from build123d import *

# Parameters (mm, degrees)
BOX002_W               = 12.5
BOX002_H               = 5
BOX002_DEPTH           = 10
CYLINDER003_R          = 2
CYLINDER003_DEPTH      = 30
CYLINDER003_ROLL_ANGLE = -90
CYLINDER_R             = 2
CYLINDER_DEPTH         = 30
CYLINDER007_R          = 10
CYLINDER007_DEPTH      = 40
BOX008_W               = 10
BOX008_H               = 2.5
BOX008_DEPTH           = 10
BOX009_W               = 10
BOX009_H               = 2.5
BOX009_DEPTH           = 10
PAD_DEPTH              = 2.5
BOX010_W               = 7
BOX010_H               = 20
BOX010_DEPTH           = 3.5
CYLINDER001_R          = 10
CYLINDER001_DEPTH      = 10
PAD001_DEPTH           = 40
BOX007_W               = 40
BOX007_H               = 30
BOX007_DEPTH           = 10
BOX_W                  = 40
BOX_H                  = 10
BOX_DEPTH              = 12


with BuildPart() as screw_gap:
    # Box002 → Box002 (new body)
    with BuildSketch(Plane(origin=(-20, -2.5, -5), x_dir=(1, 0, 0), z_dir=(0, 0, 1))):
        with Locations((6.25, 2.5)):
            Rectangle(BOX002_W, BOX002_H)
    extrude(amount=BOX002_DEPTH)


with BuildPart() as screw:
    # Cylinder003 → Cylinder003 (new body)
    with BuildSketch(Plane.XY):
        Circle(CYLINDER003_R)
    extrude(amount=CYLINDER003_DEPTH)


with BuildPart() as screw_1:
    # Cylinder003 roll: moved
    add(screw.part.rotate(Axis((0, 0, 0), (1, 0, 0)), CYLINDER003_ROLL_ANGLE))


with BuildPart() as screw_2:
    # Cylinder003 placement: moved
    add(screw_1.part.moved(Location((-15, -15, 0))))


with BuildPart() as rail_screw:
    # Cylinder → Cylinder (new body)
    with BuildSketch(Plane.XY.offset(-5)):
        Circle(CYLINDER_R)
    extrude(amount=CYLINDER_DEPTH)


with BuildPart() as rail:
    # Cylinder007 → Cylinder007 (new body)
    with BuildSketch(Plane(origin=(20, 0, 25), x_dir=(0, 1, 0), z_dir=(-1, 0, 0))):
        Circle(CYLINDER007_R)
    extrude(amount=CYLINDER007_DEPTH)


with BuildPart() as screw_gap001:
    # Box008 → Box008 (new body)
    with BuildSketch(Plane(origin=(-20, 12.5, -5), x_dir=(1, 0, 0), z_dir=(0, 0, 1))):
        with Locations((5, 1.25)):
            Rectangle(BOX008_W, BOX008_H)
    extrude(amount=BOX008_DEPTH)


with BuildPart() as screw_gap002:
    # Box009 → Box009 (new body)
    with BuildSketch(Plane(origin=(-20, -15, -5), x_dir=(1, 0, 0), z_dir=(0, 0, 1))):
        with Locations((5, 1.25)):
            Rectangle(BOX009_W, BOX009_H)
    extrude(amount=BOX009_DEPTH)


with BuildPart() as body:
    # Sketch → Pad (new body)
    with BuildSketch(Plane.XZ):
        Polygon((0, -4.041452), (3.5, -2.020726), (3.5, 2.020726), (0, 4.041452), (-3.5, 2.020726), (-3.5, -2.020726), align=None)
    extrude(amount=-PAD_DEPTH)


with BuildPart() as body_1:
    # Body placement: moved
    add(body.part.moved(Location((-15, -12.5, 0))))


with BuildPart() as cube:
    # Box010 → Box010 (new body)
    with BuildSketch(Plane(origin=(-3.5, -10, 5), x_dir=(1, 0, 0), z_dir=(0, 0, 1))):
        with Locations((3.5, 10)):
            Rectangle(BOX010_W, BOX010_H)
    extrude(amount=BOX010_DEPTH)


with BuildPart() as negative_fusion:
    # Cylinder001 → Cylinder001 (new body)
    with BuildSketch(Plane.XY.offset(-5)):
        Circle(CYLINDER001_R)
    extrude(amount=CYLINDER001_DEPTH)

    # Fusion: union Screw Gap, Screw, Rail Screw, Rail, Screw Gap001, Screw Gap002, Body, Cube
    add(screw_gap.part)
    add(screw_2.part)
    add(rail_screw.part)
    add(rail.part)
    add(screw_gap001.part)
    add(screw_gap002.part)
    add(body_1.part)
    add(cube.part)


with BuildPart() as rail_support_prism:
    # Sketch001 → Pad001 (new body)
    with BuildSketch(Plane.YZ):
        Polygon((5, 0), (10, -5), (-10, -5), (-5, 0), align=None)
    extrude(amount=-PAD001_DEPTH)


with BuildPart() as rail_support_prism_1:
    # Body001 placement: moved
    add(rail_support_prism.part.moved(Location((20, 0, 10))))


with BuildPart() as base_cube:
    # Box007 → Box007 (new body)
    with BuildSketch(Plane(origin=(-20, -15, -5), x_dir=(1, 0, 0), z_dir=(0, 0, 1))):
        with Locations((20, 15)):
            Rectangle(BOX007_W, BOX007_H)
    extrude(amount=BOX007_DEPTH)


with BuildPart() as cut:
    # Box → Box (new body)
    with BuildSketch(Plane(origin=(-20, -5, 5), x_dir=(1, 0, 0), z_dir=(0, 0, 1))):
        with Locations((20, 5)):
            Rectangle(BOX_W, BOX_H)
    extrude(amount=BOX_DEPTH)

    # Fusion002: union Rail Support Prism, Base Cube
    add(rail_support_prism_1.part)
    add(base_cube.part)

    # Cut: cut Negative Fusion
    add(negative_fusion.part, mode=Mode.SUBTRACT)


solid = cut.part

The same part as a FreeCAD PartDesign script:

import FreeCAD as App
import Part
import Sketcher

V = App.Vector
Q = App.Units.Quantity

doc = App.newDocument("Part")
body = doc.addObject("PartDesign::Body", "Body")

# Sketch on XY plane
sketch1 = doc.addObject("Sketcher::SketchObject", "Sketch")
body.addObject(sketch1)
sketch1.AttachmentSupport = (doc.XY_Plane, [""])
sketch1.MapMode = "FlatFace"
sketch1.AttachmentOffset = App.Placement(V(0, 0, -5), App.Rotation())
sketch1.addGeometry(Part.LineSegment(V(-20, 2.5, 0), V(-20, -2.5, 0)), False)
sketch1.addGeometry(Part.LineSegment(V(-20, -2.5, 0), V(-7.5, -2.5, 0)), False)
sketch1.addGeometry(Part.LineSegment(V(-7.5, -2.5, 0), V(-7.5, 2.5, 0)), False)
sketch1.addGeometry(Part.LineSegment(V(-7.5, 2.5, 0), V(-20, 2.5, 0)), False)
sketch1.addConstraint(Sketcher.Constraint("Coincident", 0, 2, 1, 1))
sketch1.addConstraint(Sketcher.Constraint("Coincident", 1, 2, 2, 1))
sketch1.addConstraint(Sketcher.Constraint("Coincident", 2, 2, 3, 1))
sketch1.addConstraint(Sketcher.Constraint("Coincident", 3, 2, 0, 1))
sketch1.addConstraint(Sketcher.Constraint("Vertical", 0))
sketch1.addConstraint(Sketcher.Constraint("Horizontal", 1))
sketch1.addConstraint(Sketcher.Constraint("Vertical", 2))
sketch1.addConstraint(Sketcher.Constraint("Horizontal", 3))
sketch1.addConstraint(Sketcher.Constraint("DistanceY", 0, 2, 0, 1, 5.0))
sketch1.addConstraint(Sketcher.Constraint("DistanceX", 1, 1, 1, 2, 12.5))
sketch1.addConstraint(Sketcher.Constraint("DistanceX", 0, 2, -1, 1, 20.0))
sketch1.addConstraint(Sketcher.Constraint("DistanceY", 0, 2, -1, 1, 2.5))
pad1 = doc.addObject("PartDesign::Pad", "Pad")
body.addObject(pad1)
pad1.Profile = sketch1
pad1.Length = 10
body2 = doc.addObject("PartDesign::Body", "Body001")

# Sketch on XY plane
sketch2 = doc.addObject("Sketcher::SketchObject", "Sketch001")
body2.addObject(sketch2)
sketch2.AttachmentSupport = (doc.getObject("XY_Plane001"), [""])
sketch2.MapMode = "FlatFace"
sketch2.addGeometry(Part.Circle(V(0, 0, 0), V(0, 0, 1), 2), False)
sketch2.addConstraint(Sketcher.Constraint("Coincident", 0, 3, -1, 1))
sketch2.addConstraint(Sketcher.Constraint("Diameter", 0, 4.0))
pad2 = doc.addObject("PartDesign::Pad", "Pad001")
body2.addObject(pad2)
pad2.Profile = sketch2
pad2.Length = 30
body3 = doc.addObject("PartDesign::Body", "Body002")
doc.recompute()

body2.Placement = App.Placement(V(0, 0, 0), App.Rotation(V(1, 0, 0), 270))
boolean = doc.addObject("PartDesign::Boolean", "Boolean")
body3.addObject(boolean)
boolean.Type = "Fuse"
boolean.addObjects([body2])
body4 = doc.addObject("PartDesign::Body", "Body003")
doc.recompute()

body3.Placement = App.Placement(V(-15, -15, 0), App.Rotation(V(0, 0, 1), 0))
boolean2 = doc.addObject("PartDesign::Boolean", "Boolean001")
body4.addObject(boolean2)
boolean2.Type = "Fuse"
boolean2.addObjects([body3])
body5 = doc.addObject("PartDesign::Body", "Body004")

# Sketch on XY plane
sketch3 = doc.addObject("Sketcher::SketchObject", "Sketch002")
body5.addObject(sketch3)
sketch3.AttachmentSupport = (doc.getObject("XY_Plane004"), [""])
sketch3.MapMode = "FlatFace"
sketch3.AttachmentOffset = App.Placement(V(0, 0, -5), App.Rotation())
sketch3.addGeometry(Part.Circle(V(0, 0, 0), V(0, 0, 1), 2), False)
sketch3.addConstraint(Sketcher.Constraint("Coincident", 0, 3, -1, 1))
sketch3.addConstraint(Sketcher.Constraint("Diameter", 0, 4.0))
pad3 = doc.addObject("PartDesign::Pad", "Pad002")
body5.addObject(pad3)
pad3.Profile = sketch3
pad3.Length = 30
body6 = doc.addObject("PartDesign::Body", "Body005")

# Sketch on YZ plane
sketch4 = doc.addObject("Sketcher::SketchObject", "Sketch003")
body6.addObject(sketch4)
sketch4.AttachmentSupport = (doc.getObject("YZ_Plane005"), [""])
sketch4.MapMode = "FlatFace"
sketch4.AttachmentOffset = App.Placement(V(0, 0, 20), App.Rotation())
sketch4.addGeometry(Part.Circle(V(0, 25, 0), V(0, 0, 1), 10), False)
sketch4.addConstraint(Sketcher.Constraint("PointOnObject", 0, 3, -2))
sketch4.addConstraint(Sketcher.Constraint("Diameter", 0, 20.0))
sketch4.addConstraint(Sketcher.Constraint("DistanceY", -1, 1, 0, 3, 25.0))
pad4 = doc.addObject("PartDesign::Pad", "Pad003")
body6.addObject(pad4)
pad4.Profile = sketch4
pad4.Length = 40
pad4.Reversed = True
body7 = doc.addObject("PartDesign::Body", "Body006")

# Sketch on XY plane
sketch5 = doc.addObject("Sketcher::SketchObject", "Sketch004")
body7.addObject(sketch5)
sketch5.AttachmentSupport = (doc.getObject("XY_Plane006"), [""])
sketch5.MapMode = "FlatFace"
sketch5.AttachmentOffset = App.Placement(V(0, 0, -5), App.Rotation())
sketch5.addGeometry(Part.LineSegment(V(-20, 15, 0), V(-20, 12.5, 0)), False)
sketch5.addGeometry(Part.LineSegment(V(-20, 12.5, 0), V(-10, 12.5, 0)), False)
sketch5.addGeometry(Part.LineSegment(V(-10, 12.5, 0), V(-10, 15, 0)), False)
sketch5.addGeometry(Part.LineSegment(V(-10, 15, 0), V(-20, 15, 0)), False)
sketch5.addConstraint(Sketcher.Constraint("Coincident", 0, 2, 1, 1))
sketch5.addConstraint(Sketcher.Constraint("Coincident", 1, 2, 2, 1))
sketch5.addConstraint(Sketcher.Constraint("Coincident", 2, 2, 3, 1))
sketch5.addConstraint(Sketcher.Constraint("Coincident", 3, 2, 0, 1))
sketch5.addConstraint(Sketcher.Constraint("Vertical", 0))
sketch5.addConstraint(Sketcher.Constraint("Horizontal", 1))
sketch5.addConstraint(Sketcher.Constraint("Vertical", 2))
sketch5.addConstraint(Sketcher.Constraint("Horizontal", 3))
sketch5.addConstraint(Sketcher.Constraint("DistanceX", 1, 1, 1, 2, 10.0))
sketch5.addConstraint(Sketcher.Constraint("DistanceY", 0, 2, 0, 1, 2.5))
sketch5.addConstraint(Sketcher.Constraint("DistanceX", 0, 2, -1, 1, 20.0))
sketch5.addConstraint(Sketcher.Constraint("DistanceY", -1, 1, 2, 2, 15.0))
pad5 = doc.addObject("PartDesign::Pad", "Pad004")
body7.addObject(pad5)
pad5.Profile = sketch5
pad5.Length = 10
body8 = doc.addObject("PartDesign::Body", "Body007")

# Sketch on XY plane
sketch6 = doc.addObject("Sketcher::SketchObject", "Sketch005")
body8.addObject(sketch6)
sketch6.AttachmentSupport = (doc.getObject("XY_Plane007"), [""])
sketch6.MapMode = "FlatFace"
sketch6.AttachmentOffset = App.Placement(V(0, 0, -5), App.Rotation())
sketch6.addGeometry(Part.LineSegment(V(-20, -12.5, 0), V(-20, -15, 0)), False)
sketch6.addGeometry(Part.LineSegment(V(-20, -15, 0), V(-10, -15, 0)), False)
sketch6.addGeometry(Part.LineSegment(V(-10, -15, 0), V(-10, -12.5, 0)), False)
sketch6.addGeometry(Part.LineSegment(V(-10, -12.5, 0), V(-20, -12.5, 0)), False)
sketch6.addConstraint(Sketcher.Constraint("Coincident", 0, 2, 1, 1))
sketch6.addConstraint(Sketcher.Constraint("Coincident", 1, 2, 2, 1))
sketch6.addConstraint(Sketcher.Constraint("Coincident", 2, 2, 3, 1))
sketch6.addConstraint(Sketcher.Constraint("Coincident", 3, 2, 0, 1))
sketch6.addConstraint(Sketcher.Constraint("Vertical", 0))
sketch6.addConstraint(Sketcher.Constraint("Horizontal", 1))
sketch6.addConstraint(Sketcher.Constraint("Vertical", 2))
sketch6.addConstraint(Sketcher.Constraint("Horizontal", 3))
sketch6.addConstraint(Sketcher.Constraint("DistanceX", 1, 1, 1, 2, 10.0))
sketch6.addConstraint(Sketcher.Constraint("DistanceY", 0, 2, 0, 1, 2.5))
sketch6.addConstraint(Sketcher.Constraint("DistanceX", 0, 2, -1, 1, 20.0))
sketch6.addConstraint(Sketcher.Constraint("DistanceY", 0, 2, -1, 1, 15.0))
pad6 = doc.addObject("PartDesign::Pad", "Pad005")
body8.addObject(pad6)
pad6.Profile = sketch6
pad6.Length = 10
body9 = doc.addObject("PartDesign::Body", "Body008")

# Sketch on XZ plane
sketch7 = doc.addObject("Sketcher::SketchObject", "Sketch006")
body9.addObject(sketch7)
sketch7.AttachmentSupport = (doc.getObject("XZ_Plane008"), [""])
sketch7.MapMode = "FlatFace"
sketch7.addGeometry(Part.LineSegment(V(0, -4.041452, 0), V(3.5, -2.020726, 0)), False)
sketch7.addGeometry(Part.LineSegment(V(3.5, -2.020726, 0), V(3.5, 2.020726, 0)), False)
sketch7.addGeometry(Part.LineSegment(V(3.5, 2.020726, 0), V(0, 4.041452, 0)), False)
sketch7.addGeometry(Part.LineSegment(V(0, 4.041452, 0), V(-3.5, 2.020726, 0)), False)
sketch7.addGeometry(Part.LineSegment(V(-3.5, 2.020726, 0), V(-3.5, -2.020726, 0)), False)
sketch7.addGeometry(Part.LineSegment(V(-3.5, -2.020726, 0), V(0, -4.041452, 0)), False)
sketch7.addConstraint(Sketcher.Constraint("Coincident", 0, 2, 1, 1))
sketch7.addConstraint(Sketcher.Constraint("Coincident", 1, 2, 2, 1))
sketch7.addConstraint(Sketcher.Constraint("Coincident", 2, 2, 3, 1))
sketch7.addConstraint(Sketcher.Constraint("Coincident", 3, 2, 4, 1))
sketch7.addConstraint(Sketcher.Constraint("Coincident", 4, 2, 5, 1))
sketch7.addConstraint(Sketcher.Constraint("Coincident", 5, 2, 0, 1))
sketch7.addConstraint(Sketcher.Constraint("Vertical", 1))
sketch7.addConstraint(Sketcher.Constraint("Vertical", 4))
sketch7.addConstraint(Sketcher.Constraint("Symmetric", 0, 2, 3, 2, -1, 1))
sketch7.addConstraint(Sketcher.Constraint("Symmetric", 2, 2, 5, 2, -1, 1))
sketch7.addConstraint(Sketcher.Constraint("PointOnObject", 2, 2, -2))
sketch7.addConstraint(Sketcher.Constraint("Parallel", 2, 5))
sketch7.addConstraint(Sketcher.Constraint("Horizontal", 1, 2, 3, 2))
sketch7.addConstraint(Sketcher.Constraint("Angle", 0, Q("30.000001 deg")))
sketch7.addConstraint(Sketcher.Constraint("DistanceX", 3, 2, 1, 2, 7.0))
sketch7.addConstraint(Sketcher.Constraint("DistanceY", 1, 1, 1, 2, 4.041452))
pad7 = doc.addObject("PartDesign::Pad", "Pad006")
body9.addObject(pad7)
pad7.Profile = sketch7
pad7.Length = 2.5
pad7.Reversed = True
body10 = doc.addObject("PartDesign::Body", "Body009")
doc.recompute()

body9.Placement = App.Placement(V(-15, -12.5, 0), App.Rotation(V(0, 0, 1), 0))
boolean3 = doc.addObject("PartDesign::Boolean", "Boolean002")
body10.addObject(boolean3)
boolean3.Type = "Fuse"
boolean3.addObjects([body9])
body11 = doc.addObject("PartDesign::Body", "Body010")

# Sketch on XY plane
sketch8 = doc.addObject("Sketcher::SketchObject", "Sketch007")
body11.addObject(sketch8)
sketch8.AttachmentSupport = (doc.getObject("XY_Plane010"), [""])
sketch8.MapMode = "FlatFace"
sketch8.AttachmentOffset = App.Placement(V(0, 0, 5), App.Rotation())
sketch8.addGeometry(Part.LineSegment(V(-3.5, 10, 0), V(-3.5, -10, 0)), False)
sketch8.addGeometry(Part.LineSegment(V(-3.5, -10, 0), V(3.5, -10, 0)), False)
sketch8.addGeometry(Part.LineSegment(V(3.5, -10, 0), V(3.5, 10, 0)), False)
sketch8.addGeometry(Part.LineSegment(V(3.5, 10, 0), V(-3.5, 10, 0)), False)
sketch8.addConstraint(Sketcher.Constraint("Coincident", 0, 2, 1, 1))
sketch8.addConstraint(Sketcher.Constraint("Coincident", 1, 2, 2, 1))
sketch8.addConstraint(Sketcher.Constraint("Coincident", 2, 2, 3, 1))
sketch8.addConstraint(Sketcher.Constraint("Coincident", 3, 2, 0, 1))
sketch8.addConstraint(Sketcher.Constraint("Vertical", 0))
sketch8.addConstraint(Sketcher.Constraint("Horizontal", 1))
sketch8.addConstraint(Sketcher.Constraint("Vertical", 2))
sketch8.addConstraint(Sketcher.Constraint("Horizontal", 3))
sketch8.addConstraint(Sketcher.Constraint("Symmetric", 0, 2, 2, 2, -1, 1))
sketch8.addConstraint(Sketcher.Constraint("DistanceX", 1, 1, 1, 2, 7.0))
sketch8.addConstraint(Sketcher.Constraint("DistanceY", 0, 2, 0, 1, 20.0))
pad8 = doc.addObject("PartDesign::Pad", "Pad007")
body11.addObject(pad8)
pad8.Profile = sketch8
pad8.Length = 3.5
body12 = doc.addObject("PartDesign::Body", "Body011")

# Sketch on XY plane
sketch9 = doc.addObject("Sketcher::SketchObject", "Sketch008")
body12.addObject(sketch9)
sketch9.AttachmentSupport = (doc.getObject("XY_Plane011"), [""])
sketch9.MapMode = "FlatFace"
sketch9.AttachmentOffset = App.Placement(V(0, 0, -5), App.Rotation())
sketch9.addGeometry(Part.Circle(V(0, 0, 0), V(0, 0, 1), 10), False)
sketch9.addConstraint(Sketcher.Constraint("Coincident", 0, 3, -1, 1))
sketch9.addConstraint(Sketcher.Constraint("Diameter", 0, 20.0))
pad9 = doc.addObject("PartDesign::Pad", "Pad008")
body12.addObject(pad9)
pad9.Profile = sketch9
pad9.Length = 10
doc.recompute()

boolean4 = doc.addObject("PartDesign::Boolean", "Boolean003")
body12.addObject(boolean4)
boolean4.Type = "Fuse"
boolean4.addObjects([body])
doc.recompute()

boolean5 = doc.addObject("PartDesign::Boolean", "Boolean004")
body12.addObject(boolean5)
boolean5.Type = "Fuse"
boolean5.addObjects([body4])
doc.recompute()

boolean6 = doc.addObject("PartDesign::Boolean", "Boolean005")
body12.addObject(boolean6)
boolean6.Type = "Fuse"
boolean6.addObjects([body5])
doc.recompute()

boolean7 = doc.addObject("PartDesign::Boolean", "Boolean006")
body12.addObject(boolean7)
boolean7.Type = "Fuse"
boolean7.addObjects([body6])
doc.recompute()

boolean8 = doc.addObject("PartDesign::Boolean", "Boolean007")
body12.addObject(boolean8)
boolean8.Type = "Fuse"
boolean8.addObjects([body7])
doc.recompute()

boolean9 = doc.addObject("PartDesign::Boolean", "Boolean008")
body12.addObject(boolean9)
boolean9.Type = "Fuse"
boolean9.addObjects([body8])
doc.recompute()

boolean10 = doc.addObject("PartDesign::Boolean", "Boolean009")
body12.addObject(boolean10)
boolean10.Type = "Fuse"
boolean10.addObjects([body10])
doc.recompute()

boolean11 = doc.addObject("PartDesign::Boolean", "Boolean010")
body12.addObject(boolean11)
boolean11.Type = "Fuse"
boolean11.addObjects([body11])
body13 = doc.addObject("PartDesign::Body", "Body012")

# Sketch on YZ plane
sketch10 = doc.addObject("Sketcher::SketchObject", "Sketch009")
body13.addObject(sketch10)
sketch10.AttachmentSupport = (doc.getObject("YZ_Plane012"), [""])
sketch10.MapMode = "FlatFace"
sketch10.addGeometry(Part.LineSegment(V(10, -5, 0), V(5, 0, 0)), False)
sketch10.addGeometry(Part.LineSegment(V(5, 0, 0), V(-5, 0, 0)), False)
sketch10.addGeometry(Part.LineSegment(V(-5, 0, 0), V(-10, -5, 0)), False)
sketch10.addGeometry(Part.LineSegment(V(-10, -5, 0), V(10, -5, 0)), False)
sketch10.addConstraint(Sketcher.Constraint("Coincident", 0, 2, 1, 1))
sketch10.addConstraint(Sketcher.Constraint("Coincident", 1, 2, 2, 1))
sketch10.addConstraint(Sketcher.Constraint("Coincident", 2, 2, 3, 1))
sketch10.addConstraint(Sketcher.Constraint("Coincident", 3, 2, 0, 1))
sketch10.addConstraint(Sketcher.Constraint("Horizontal", 1))
sketch10.addConstraint(Sketcher.Constraint("Horizontal", 3))
sketch10.addConstraint(Sketcher.Constraint("Symmetric", 0, 2, 1, 2, -1, 1))
sketch10.addConstraint(Sketcher.Constraint("Perpendicular", 0, 2))
sketch10.addConstraint(Sketcher.Constraint("Equal", 0, 2))
sketch10.addConstraint(Sketcher.Constraint("DistanceX", 1, 2, 1, 1, 10.0))
sketch10.addConstraint(Sketcher.Constraint("DistanceX", 3, 1, 3, 2, 20.0))
pad10 = doc.addObject("PartDesign::Pad", "Pad009")
body13.addObject(pad10)
pad10.Profile = sketch10
pad10.Length = 40
pad10.Reversed = True
body14 = doc.addObject("PartDesign::Body", "Body013")
doc.recompute()

body13.Placement = App.Placement(V(20, 0, 10), App.Rotation(V(0, 0, 1), 0))
boolean12 = doc.addObject("PartDesign::Boolean", "Boolean011")
body14.addObject(boolean12)
boolean12.Type = "Fuse"
boolean12.addObjects([body13])
body15 = doc.addObject("PartDesign::Body", "Body014")

# Sketch on XY plane
sketch11 = doc.addObject("Sketcher::SketchObject", "Sketch010")
body15.addObject(sketch11)
sketch11.AttachmentSupport = (doc.getObject("XY_Plane014"), [""])
sketch11.MapMode = "FlatFace"
sketch11.AttachmentOffset = App.Placement(V(0, 0, -5), App.Rotation())
sketch11.addGeometry(Part.LineSegment(V(-20, 15, 0), V(-20, -15, 0)), False)
sketch11.addGeometry(Part.LineSegment(V(-20, -15, 0), V(20, -15, 0)), False)
sketch11.addGeometry(Part.LineSegment(V(20, -15, 0), V(20, 15, 0)), False)
sketch11.addGeometry(Part.LineSegment(V(20, 15, 0), V(-20, 15, 0)), False)
sketch11.addConstraint(Sketcher.Constraint("Coincident", 0, 2, 1, 1))
sketch11.addConstraint(Sketcher.Constraint("Coincident", 1, 2, 2, 1))
sketch11.addConstraint(Sketcher.Constraint("Coincident", 2, 2, 3, 1))
sketch11.addConstraint(Sketcher.Constraint("Coincident", 3, 2, 0, 1))
sketch11.addConstraint(Sketcher.Constraint("Vertical", 0))
sketch11.addConstraint(Sketcher.Constraint("Horizontal", 1))
sketch11.addConstraint(Sketcher.Constraint("Vertical", 2))
sketch11.addConstraint(Sketcher.Constraint("Horizontal", 3))
sketch11.addConstraint(Sketcher.Constraint("Symmetric", 0, 2, 2, 2, -1, 1))
sketch11.addConstraint(Sketcher.Constraint("DistanceX", 1, 1, 1, 2, 40.0))
sketch11.addConstraint(Sketcher.Constraint("DistanceY", 0, 2, 0, 1, 30.0))
pad11 = doc.addObject("PartDesign::Pad", "Pad010")
body15.addObject(pad11)
pad11.Profile = sketch11
pad11.Length = 10
body16 = doc.addObject("PartDesign::Body", "Body015")

# Sketch on XY plane
sketch12 = doc.addObject("Sketcher::SketchObject", "Sketch011")
body16.addObject(sketch12)
sketch12.AttachmentSupport = (doc.getObject("XY_Plane015"), [""])
sketch12.MapMode = "FlatFace"
sketch12.AttachmentOffset = App.Placement(V(0, 0, 5), App.Rotation())
sketch12.addGeometry(Part.LineSegment(V(-20, 5, 0), V(-20, -5, 0)), False)
sketch12.addGeometry(Part.LineSegment(V(-20, -5, 0), V(20, -5, 0)), False)
sketch12.addGeometry(Part.LineSegment(V(20, -5, 0), V(20, 5, 0)), False)
sketch12.addGeometry(Part.LineSegment(V(20, 5, 0), V(-20, 5, 0)), False)
sketch12.addConstraint(Sketcher.Constraint("Coincident", 0, 2, 1, 1))
sketch12.addConstraint(Sketcher.Constraint("Coincident", 1, 2, 2, 1))
sketch12.addConstraint(Sketcher.Constraint("Coincident", 2, 2, 3, 1))
sketch12.addConstraint(Sketcher.Constraint("Coincident", 3, 2, 0, 1))
sketch12.addConstraint(Sketcher.Constraint("Vertical", 0))
sketch12.addConstraint(Sketcher.Constraint("Horizontal", 1))
sketch12.addConstraint(Sketcher.Constraint("Vertical", 2))
sketch12.addConstraint(Sketcher.Constraint("Horizontal", 3))
sketch12.addConstraint(Sketcher.Constraint("Symmetric", 0, 2, 2, 2, -1, 1))
sketch12.addConstraint(Sketcher.Constraint("DistanceX", 1, 1, 1, 2, 40.0))
sketch12.addConstraint(Sketcher.Constraint("DistanceY", 0, 2, 0, 1, 10.0))
pad12 = doc.addObject("PartDesign::Pad", "Pad011")
body16.addObject(pad12)
pad12.Profile = sketch12
pad12.Length = 12
doc.recompute()

boolean13 = doc.addObject("PartDesign::Boolean", "Boolean012")
body16.addObject(boolean13)
boolean13.Type = "Fuse"
boolean13.addObjects([body14])
doc.recompute()

boolean14 = doc.addObject("PartDesign::Boolean", "Boolean013")
body16.addObject(boolean14)
boolean14.Type = "Fuse"
boolean14.addObjects([body15])
doc.recompute()

boolean15 = doc.addObject("PartDesign::Boolean", "Boolean014")
body16.addObject(boolean15)
boolean15.Type = "Cut"
boolean15.addObjects([body12])

doc.recompute()
